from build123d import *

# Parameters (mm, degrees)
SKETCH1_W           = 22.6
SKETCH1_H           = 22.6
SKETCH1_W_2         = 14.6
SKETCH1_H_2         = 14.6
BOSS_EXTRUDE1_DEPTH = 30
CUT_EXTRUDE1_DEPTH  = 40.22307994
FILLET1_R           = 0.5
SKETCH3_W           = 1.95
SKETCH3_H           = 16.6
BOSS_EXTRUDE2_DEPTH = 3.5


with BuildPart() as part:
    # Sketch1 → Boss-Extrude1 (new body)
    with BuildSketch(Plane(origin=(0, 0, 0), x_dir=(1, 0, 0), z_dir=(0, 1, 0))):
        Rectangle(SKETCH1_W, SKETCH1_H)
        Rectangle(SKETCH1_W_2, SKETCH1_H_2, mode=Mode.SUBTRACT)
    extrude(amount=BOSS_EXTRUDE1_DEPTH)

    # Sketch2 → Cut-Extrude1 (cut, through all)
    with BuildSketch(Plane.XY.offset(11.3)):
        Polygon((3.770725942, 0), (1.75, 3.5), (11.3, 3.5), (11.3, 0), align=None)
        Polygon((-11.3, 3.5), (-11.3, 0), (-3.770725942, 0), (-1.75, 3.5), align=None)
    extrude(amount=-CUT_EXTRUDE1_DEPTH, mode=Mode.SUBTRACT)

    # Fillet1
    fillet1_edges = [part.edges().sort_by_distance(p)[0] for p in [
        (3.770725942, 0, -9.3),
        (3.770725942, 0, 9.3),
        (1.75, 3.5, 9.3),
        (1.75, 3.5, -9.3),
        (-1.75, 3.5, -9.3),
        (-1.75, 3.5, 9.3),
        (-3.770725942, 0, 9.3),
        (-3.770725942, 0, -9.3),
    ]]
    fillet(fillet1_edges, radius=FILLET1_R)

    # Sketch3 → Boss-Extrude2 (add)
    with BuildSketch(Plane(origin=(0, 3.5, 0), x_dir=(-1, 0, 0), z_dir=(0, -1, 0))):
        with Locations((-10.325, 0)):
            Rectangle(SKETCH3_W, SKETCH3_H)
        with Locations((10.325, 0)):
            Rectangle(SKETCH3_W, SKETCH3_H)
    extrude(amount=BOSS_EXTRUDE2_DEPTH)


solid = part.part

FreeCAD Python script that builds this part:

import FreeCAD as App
import Part
import Sketcher
Q = App.Units.Quantity


def edges_at(feature, points):
    """Names of the edges that pass closest to the given points."""
    edges = feature.Shape.Edges
    near = lambda p: min(range(len(edges)), key=lambda i: edges[i].distToShape(Part.Vertex(*p))[0])
    return sorted({f"Edge{near(p) + 1}" for p in points})


def add_polygon(sketch, points):
    """Adds a closed chain of lines whose ends are joined by coincident constraints."""
    first, n = sketch.GeometryCount, len(points)
    for a, b in zip(points, points[1:] + points[:1]):
        sketch.addGeometry(Part.LineSegment(App.Vector(*a, 0), App.Vector(*b, 0)), False)
    for i in range(n):
        sketch.addConstraint(Sketcher.Constraint("Coincident", first + i, 2, first + (i + 1) % n, 1))

doc = App.newDocument("Part")
body = doc.addObject("PartDesign::Body", "Body")

# Sketch on XZ plane
sketch1 = body.newObject("Sketcher::SketchObject", "Sketch")
sketch1.AttachmentSupport = (doc.getObject("XZ_Plane"), [""])
sketch1.MapMode = "FlatFace"
add_polygon(sketch1, [(-11, -11), (-11, 11), (11, 11), (11, -11)])  # lines 0-3
add_polygon(sketch1, [(7, 7), (-7, 7), (-7, -7), (7, -7)])  # lines 4-7
sketch1.addConstraint(Sketcher.Constraint("Vertical", 0))
sketch1.addConstraint(Sketcher.Constraint("Horizontal", 1))
sketch1.addConstraint(Sketcher.Constraint("Vertical", 2))
sketch1.addConstraint(Sketcher.Constraint("Horizontal", 3))
sketch1.addConstraint(Sketcher.Constraint("Horizontal", 4))
sketch1.addConstraint(Sketcher.Constraint("Vertical", 5))
sketch1.addConstraint(Sketcher.Constraint("Horizontal", 6))
sketch1.addConstraint(Sketcher.Constraint("Vertical", 7))
sketch1.addConstraint(Sketcher.Constraint("Symmetric", 0, 2, 2, 2, -1, 1))
sketch1.addConstraint(Sketcher.Constraint("Symmetric", 4, 2, 6, 2, -1, 1))
sketch1.addConstraint(Sketcher.Constraint("Equal", 3, 0))
sketch1.addConstraint(Sketcher.Constraint("Equal", 6, 5))
sketch1.addConstraint(Sketcher.Constraint("DistanceX", 1, 1, 1, 2, 22.6))
sketch1.addConstraint(Sketcher.Constraint("DistanceX", 4, 2, 4, 1, 14.6))
pad1 = body.newObject("PartDesign::Pad", "Pad")
pad1.Profile = sketch1
pad1.Length = 30
pad1.Reversed = True

# Sketch on XY plane
sketch2 = body.newObject("Sketcher::SketchObject", "Sketch001")
sketch2.AttachmentSupport = (doc.getObject("XY_Plane"), [""])
sketch2.MapMode = "FlatFace"
sketch2.AttachmentOffset = App.Placement(App.Vector(0, 0, 11.3), App.Rotation())
add_polygon(sketch2, [(1.8, 3.5), (3.8, 0), (11.3, 0), (11.3, 3.5)])  # lines 0-3
add_polygon(sketch2, [(-11.3, 3.5), (-11.3, 0), (-3.8, 0), (-1.8, 3.5)])  # lines 4-7
sketch2.addConstraint(Sketcher.Constraint("Horizontal", 1))
sketch2.addConstraint(Sketcher.Constraint("Vertical", 2))
sketch2.addConstraint(Sketcher.Constraint("Horizontal", 3))
sketch2.addConstraint(Sketcher.Constraint("Vertical", 4))
sketch2.addConstraint(Sketcher.Constraint("Horizontal", 5))
sketch2.addConstraint(Sketcher.Constraint("Horizontal", 7))
sketch2.addConstraint(Sketcher.Constraint("Symmetric", 1, 2, 4, 2, -1, 1))
sketch2.addConstraint(Sketcher.Constraint("Symmetric", 0, 2, 5, 2, -2))
sketch2.addConstraint(Sketcher.Constraint("Symmetric", 3, 2, 6, 2, -2))
sketch2.addConstraint(Sketcher.Constraint("Angle", 0, Q("-60 deg")))
sketch2.addConstraint(Sketcher.Constraint("DistanceY", 2, 1, 2, 2, 3.5))
sketch2.addConstraint(Sketcher.Constraint("DistanceX", 3, 2, 3, 1, 9.55))
sketch2.addConstraint(Sketcher.Constraint("DistanceX", -1, 1, 1, 2, 11.3))
pocket1 = body.newObject("PartDesign::Pocket", "Pocket")
pocket1.Profile = sketch2
pocket1.Type = "ThroughAll"
doc.recompute()

fillet = body.newObject("PartDesign::Fillet", "Fillet")
fillet.Base = (pocket1, edges_at(pocket1, [
    (3.771, 0, -9.3),
    (3.771, 0, 9.3),
    (1.75, 3.5, 9.3),
    (1.75, 3.5, -9.3),
    (-1.75, 3.5, -9.3),
    (-1.75, 3.5, 9.3),
    (-3.771, 0, 9.3),
    (-3.771, 0, -9.3),
]))
fillet.Radius = 0.5

# Sketch on XZ plane
sketch3 = body.newObject("Sketcher::SketchObject", "Sketch002")
sketch3.AttachmentSupport = (doc.getObject("XZ_Plane"), [""])
sketch3.MapMode = "FlatFace"
sketch3.AttachmentOffset = App.Placement(App.Vector(0, 0, -3.5), App.Rotation())
add_polygon(sketch3, [(11.3, -8.3), (11.3, 8.3), (9.3, 8.3), (9.3, -8.3)])  # lines 0-3
add_polygon(sketch3, [(-9.3, -8.3), (-9.3, 8.3), (-11.3, 8.3), (-11.3, -8.3)])  # lines 4-7
sketch3.addConstraint(Sketcher.Constraint("Vertical", 0))
sketch3.addConstraint(Sketcher.Constraint("Horizontal", 1))
sketch3.addConstraint(Sketcher.Constraint("Vertical", 2))
sketch3.addConstraint(Sketcher.Constraint("Horizontal", 3))
sketch3.addConstraint(Sketcher.Constraint("Vertical", 4))
sketch3.addConstraint(Sketcher.Constraint("Horizontal", 5))
sketch3.addConstraint(Sketcher.Constraint("Vertical", 6))
sketch3.addConstraint(Sketcher.Constraint("Horizontal", 7))
sketch3.addConstraint(Sketcher.Constraint("Symmetric", 2, 2, 4, 2, -1, 1))
sketch3.addConstraint(Sketcher.Constraint("Symmetric", 0, 2, 6, 2, -1, 1))
sketch3.addConstraint(Sketcher.Constraint("Horizontal", 1, 2, 4, 2))
sketch3.addConstraint(Sketcher.Constraint("DistanceY", 0, 1, 0, 2, 16.6))
sketch3.addConstraint(Sketcher.Constraint("DistanceX", 1, 2, 1, 1, 1.95))
sketch3.addConstraint(Sketcher.Constraint("DistanceX", -1, 1, 0, 2, 11.3))
pad2 = body.newObject("PartDesign::Pad", "Pad001")
pad2.Profile = sketch3
pad2.Length = 3.5

doc.recompute()
